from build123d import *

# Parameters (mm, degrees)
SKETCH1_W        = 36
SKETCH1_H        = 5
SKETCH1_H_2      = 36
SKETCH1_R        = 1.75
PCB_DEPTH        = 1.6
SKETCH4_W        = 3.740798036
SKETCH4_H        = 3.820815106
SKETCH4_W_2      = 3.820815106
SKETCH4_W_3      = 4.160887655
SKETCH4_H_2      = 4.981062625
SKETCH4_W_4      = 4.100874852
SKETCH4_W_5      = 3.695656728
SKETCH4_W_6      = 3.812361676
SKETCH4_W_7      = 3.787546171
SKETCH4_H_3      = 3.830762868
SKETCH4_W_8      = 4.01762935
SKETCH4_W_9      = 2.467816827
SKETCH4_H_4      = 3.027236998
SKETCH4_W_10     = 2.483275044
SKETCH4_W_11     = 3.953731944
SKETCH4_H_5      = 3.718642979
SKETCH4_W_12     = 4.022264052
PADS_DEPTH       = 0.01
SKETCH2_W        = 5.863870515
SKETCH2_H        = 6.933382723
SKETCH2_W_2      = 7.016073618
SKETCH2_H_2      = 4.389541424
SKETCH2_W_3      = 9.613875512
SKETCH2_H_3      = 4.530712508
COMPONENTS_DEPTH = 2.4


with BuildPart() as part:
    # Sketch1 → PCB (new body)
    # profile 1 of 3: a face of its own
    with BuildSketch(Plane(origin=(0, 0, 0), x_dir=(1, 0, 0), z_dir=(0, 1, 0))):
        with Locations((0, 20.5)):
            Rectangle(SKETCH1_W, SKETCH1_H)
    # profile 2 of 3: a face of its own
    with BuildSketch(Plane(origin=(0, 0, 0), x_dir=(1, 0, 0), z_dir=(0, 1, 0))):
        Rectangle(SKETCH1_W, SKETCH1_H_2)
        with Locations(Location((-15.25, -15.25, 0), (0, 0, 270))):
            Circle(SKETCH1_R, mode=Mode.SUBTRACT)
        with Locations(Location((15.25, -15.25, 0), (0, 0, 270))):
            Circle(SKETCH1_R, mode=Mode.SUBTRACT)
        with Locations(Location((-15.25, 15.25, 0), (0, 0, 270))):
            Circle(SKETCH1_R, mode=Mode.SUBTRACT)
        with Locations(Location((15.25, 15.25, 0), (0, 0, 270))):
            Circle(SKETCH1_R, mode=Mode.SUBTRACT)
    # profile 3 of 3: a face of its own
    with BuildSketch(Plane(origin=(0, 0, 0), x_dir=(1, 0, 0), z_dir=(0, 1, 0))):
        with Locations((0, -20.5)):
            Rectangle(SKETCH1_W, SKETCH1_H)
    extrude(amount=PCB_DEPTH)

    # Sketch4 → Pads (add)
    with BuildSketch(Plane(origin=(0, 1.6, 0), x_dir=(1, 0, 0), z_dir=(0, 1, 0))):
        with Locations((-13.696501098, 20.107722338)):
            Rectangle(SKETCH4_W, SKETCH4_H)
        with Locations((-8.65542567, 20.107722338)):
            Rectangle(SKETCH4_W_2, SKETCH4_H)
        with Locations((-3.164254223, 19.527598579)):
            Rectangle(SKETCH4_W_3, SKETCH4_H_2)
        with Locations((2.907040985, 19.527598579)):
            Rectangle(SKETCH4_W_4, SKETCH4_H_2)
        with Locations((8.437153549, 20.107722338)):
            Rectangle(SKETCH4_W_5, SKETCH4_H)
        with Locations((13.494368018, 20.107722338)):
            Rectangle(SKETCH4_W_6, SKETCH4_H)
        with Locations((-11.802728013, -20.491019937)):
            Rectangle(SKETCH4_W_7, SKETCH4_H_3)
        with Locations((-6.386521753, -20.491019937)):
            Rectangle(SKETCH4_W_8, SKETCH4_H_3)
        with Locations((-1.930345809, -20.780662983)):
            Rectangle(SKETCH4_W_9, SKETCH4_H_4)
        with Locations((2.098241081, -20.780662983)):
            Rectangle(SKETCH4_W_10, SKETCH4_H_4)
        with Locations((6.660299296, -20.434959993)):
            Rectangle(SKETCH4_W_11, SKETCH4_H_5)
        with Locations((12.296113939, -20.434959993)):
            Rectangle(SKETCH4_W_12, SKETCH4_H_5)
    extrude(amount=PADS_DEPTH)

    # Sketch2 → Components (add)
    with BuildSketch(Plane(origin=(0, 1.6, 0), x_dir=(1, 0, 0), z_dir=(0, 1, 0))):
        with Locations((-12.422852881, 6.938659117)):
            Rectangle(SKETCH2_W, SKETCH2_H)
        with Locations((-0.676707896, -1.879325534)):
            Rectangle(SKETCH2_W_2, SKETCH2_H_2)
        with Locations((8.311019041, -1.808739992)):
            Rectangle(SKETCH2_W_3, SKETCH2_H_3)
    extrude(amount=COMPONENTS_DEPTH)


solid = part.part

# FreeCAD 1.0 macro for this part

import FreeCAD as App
import Part
import Sketcher


def add_polygon(sketch, points):
    """Adds a closed chain of lines whose ends are joined by coincident constraints."""
    first, n = sketch.GeometryCount, len(points)
    for a, b in zip(points, points[1:] + points[:1]):
        sketch.addGeometry(Part.LineSegment(App.Vector(*a, 0), App.Vector(*b, 0)), False)
    for i in range(n):
        sketch.addConstraint(Sketcher.Constraint("Coincident", first + i, 2, first + (i + 1) % n, 1))

doc = App.newDocument("Part")
body = doc.addObject("PartDesign::Body", "Body")

# Sketch on XZ plane
sketch1 = doc.addObject("Sketcher::SketchObject", "Sketch")
body.addObject(sketch1)
sketch1.AttachmentSupport = (doc.XZ_Plane, [""])
sketch1.MapMode = "FlatFace"
add_polygon(sketch1, [(-18, -23), (-18, 23), (18, 23), (18, -23)])  # lines 0-3
sketch1.addGeometry(Part.Circle(App.Vector(15.25, -15.25, 0), App.Vector(0, 0, 1), 1.75), False)  # 4
sketch1.addGeometry(Part.Circle(App.Vector(-15.25, 15.25, 0), App.Vector(0, 0, 1), 1.75), False)  # 5
sketch1.addGeometry(Part.Circle(App.Vector(15.25, 15.25, 0), App.Vector(0, 0, 1), 1.75), False)  # 6
sketch1.addGeometry(Part.Circle(App.Vector(-15.25, -15.25, 0), App.Vector(0, 0, 1), 1.75), False)  # 7
sketch1.addConstraint(Sketcher.Constraint("Vertical", 0))
sketch1.addConstraint(Sketcher.Constraint("Horizontal", 1))
sketch1.addConstraint(Sketcher.Constraint("Vertical", 2))
sketch1.addConstraint(Sketcher.Constraint("Horizontal", 3))
sketch1.addConstraint(Sketcher.Constraint("Equal", 4, 5))
sketch1.addConstraint(Sketcher.Constraint("Equal", 5, 6))
sketch1.addConstraint(Sketcher.Constraint("Equal", 6, 7))
sketch1.addConstraint(Sketcher.Constraint("Symmetric", 4, 3, 5, 3, -1, 1))
sketch1.addConstraint(Sketcher.Constraint("Symmetric", 6, 3, 7, 3, -1, 1))
sketch1.addConstraint(Sketcher.Constraint("Symmetric", 0, 2, 2, 2, -1, 1))
sketch1.addConstraint(Sketcher.Constraint("Symmetric", 5, 3, 6, 3, -2))
sketch1.addConstraint(Sketcher.Constraint("Diameter", 4, 3.5))
sketch1.addConstraint(Sketcher.Constraint("DistanceX", 1, 1, 1, 2, 36.0))
sketch1.addConstraint(Sketcher.Constraint("DistanceY", 0, 1, 0, 2, 46.0))
sketch1.addConstraint(Sketcher.Constraint("DistanceX", 5, 3, 4, 3, 30.5))
sketch1.addConstraint(Sketcher.Constraint("DistanceY", 4, 3, 5, 3, 30.5))
pad1 = doc.addObject("PartDesign::Pad", "Pad")
body.addObject(pad1)
pad1.Profile = sketch1
pad1.Length = 1.6
pad1.Reversed = True

# Sketch on XZ plane
sketch2 = doc.addObject("Sketcher::SketchObject", "Sketch001")
body.addObject(sketch2)
sketch2.AttachmentSupport = (doc.XZ_Plane, [""])
sketch2.MapMode = "FlatFace"
sketch2.AttachmentOffset = App.Placement(App.Vector(0, 0, -1.6), App.Rotation())
add_polygon(sketch2, [(-15.5669, -22.01813), (-15.5669, -18.197315), (-11.826102, -18.197315), (-11.826102, -22.01813)])  # lines 0-3
add_polygon(sketch2, [(-10.565833, -22.01813), (-10.565833, -18.197315), (-6.745018, -18.197315), (-6.745018, -22.01813)])  # lines 4-7
add_polygon(sketch2, [(-5.244698, -22.01813), (-5.244698, -17.037067), (-1.08381, -17.037067), (-1.08381, -22.01813)])  # lines 8-11
add_polygon(sketch2, [(0.856604, -22.01813), (0.856604, -17.037067), (4.957478, -17.037067), (4.957478, -22.01813)])  # lines 12-15
add_polygon(sketch2, [(6.589325, -22.01813), (6.589325, -18.197315), (10.284982, -18.197315), (10.284982, -22.01813)])  # lines 16-19
add_polygon(sketch2, [(11.588187, -22.01813), (11.588187, -18.197315), (15.400549, -18.197315), (15.400549, -22.01813)])  # lines 20-23
add_polygon(sketch2, [(-13.696501, 18.575639), (-13.696501, 22.406401), (-9.908955, 22.406401), (-9.908955, 18.575639)])  # lines 24-27
add_polygon(sketch2, [(-8.395336, 18.575639), (-8.395336, 22.406401), (-4.377707, 22.406401), (-4.377707, 18.575639)])  # lines 28-31
add_polygon(sketch2, [(-3.164254, 19.267044), (-3.164254, 22.294281), (-0.696437, 22.294281), (-0.696437, 19.267044)])  # lines 32-35
add_polygon(sketch2, [(0.856604, 19.267044), (0.856604, 22.294281), (3.339879, 22.294281), (3.339879, 19.267044)])  # lines 36-39
add_polygon(sketch2, [(4.683433, 18.575639), (4.683433, 22.294281), (8.637165, 22.294281), (8.637165, 18.575639)])  # lines 40-43
add_polygon(sketch2, [(10.284982, 18.575639), (10.284982, 22.294281), (14.307246, 22.294281), (14.307246, 18.575639)])  # lines 44-47
sketch2.addConstraint(Sketcher.Constraint("Vertical", 0))
sketch2.addConstraint(Sketcher.Constraint("Horizontal", 1))
sketch2.addConstraint(Sketcher.Constraint("Vertical", 2))
sketch2.addConstraint(Sketcher.Constraint("Horizontal", 3))
sketch2.addConstraint(Sketcher.Constraint("Vertical", 4))
sketch2.addConstraint(Sketcher.Constraint("Horizontal", 5))
sketch2.addConstraint(Sketcher.Constraint("Vertical", 6))
sketch2.addConstraint(Sketcher.Constraint("Horizontal", 7))
sketch2.addConstraint(Sketcher.Constraint("Vertical", 8))
sketch2.addConstraint(Sketcher.Constraint("Horizontal", 9))
sketch2.addConstraint(Sketcher.Constraint("Vertical", 10))
sketch2.addConstraint(Sketcher.Constraint("Horizontal", 11))
sketch2.addConstraint(Sketcher.Constraint("Vertical", 12))
sketch2.addConstraint(Sketcher.Constraint("Horizontal", 13))
sketch2.addConstraint(Sketcher.Constraint("Vertical", 14))
sketch2.addConstraint(Sketcher.Constraint("Horizontal", 15))
sketch2.addConstraint(Sketcher.Constraint("Vertical", 16))
sketch2.addConstraint(Sketcher.Constraint("Horizontal", 17))
sketch2.addConstraint(Sketcher.Constraint("Vertical", 18))
sketch2.addConstraint(Sketcher.Constraint("Horizontal", 19))
sketch2.addConstraint(Sketcher.Constraint("Vertical", 20))
sketch2.addConstraint(Sketcher.Constraint("Horizontal", 21))
sketch2.addConstraint(Sketcher.Constraint("Vertical", 22))
sketch2.addConstraint(Sketcher.Constraint("Horizontal", 23))
sketch2.addConstraint(Sketcher.Constraint("Vertical", 24))
sketch2.addConstraint(Sketcher.Constraint("Horizontal", 25))
sketch2.addConstraint(Sketcher.Constraint("Vertical", 26))
sketch2.addConstraint(Sketcher.Constraint("Horizontal", 27))
sketch2.addConstraint(Sketcher.Constraint("Vertical", 28))
sketch2.addConstraint(Sketcher.Constraint("Horizontal", 29))
sketch2.addConstraint(Sketcher.Constraint("Vertical", 30))
sketch2.addConstraint(Sketcher.Constraint("Horizontal", 31))
sketch2.addConstraint(Sketcher.Constraint("Vertical", 32))
sketch2.addConstraint(Sketcher.Constraint("Horizontal", 33))
sketch2.addConstraint(Sketcher.Constraint("Vertical", 34))
sketch2.addConstraint(Sketcher.Constraint("Horizontal", 35))
sketch2.addConstraint(Sketcher.Constraint("Vertical", 36))
sketch2.addConstraint(Sketcher.Constraint("Horizontal", 37))
sketch2.addConstraint(Sketcher.Constraint("Vertical", 38))
sketch2.addConstraint(Sketcher.Constraint("Horizontal", 39))
sketch2.addConstraint(Sketcher.Constraint("Vertical", 40))
sketch2.addConstraint(Sketcher.Constraint("Horizontal", 41))
sketch2.addConstraint(Sketcher.Constraint("Vertical", 42))
sketch2.addConstraint(Sketcher.Constraint("Horizontal", 43))
sketch2.addConstraint(Sketcher.Constraint("Vertical", 44))
sketch2.addConstraint(Sketcher.Constraint("Horizontal", 45))
sketch2.addConstraint(Sketcher.Constraint("Vertical", 46))
sketch2.addConstraint(Sketcher.Constraint("Horizontal", 47))
sketch2.addConstraint(Sketcher.Constraint("Horizontal", 1, 2, 4, 2))
sketch2.addConstraint(Sketcher.Constraint("Horizontal", 3, 2, 6, 2))
sketch2.addConstraint(Sketcher.Constraint("Horizontal", 7, 2, 10, 2))
sketch2.addConstraint(Sketcher.Constraint("Horizontal", 9, 2, 12, 2))
sketch2.addConstraint(Sketcher.Constraint("Horizontal", 11, 2, 14, 2))
sketch2.addConstraint(Sketcher.Constraint("Horizontal", 5, 2, 16, 2))
sketch2.addConstraint(Sketcher.Constraint("Horizontal", 15, 2, 18, 2))
sketch2.addConstraint(Sketcher.Constraint("Horizontal", 17, 2, 20, 2))
sketch2.addConstraint(Sketcher.Constraint("Horizontal", 19, 2, 22, 2))
sketch2.addConstraint(Sketcher.Constraint("Horizontal", 25, 2, 28, 2))
sketch2.addConstraint(Sketcher.Constraint("Horizontal", 27, 2, 30, 2))
sketch2.addConstraint(Sketcher.Constraint("Horizontal", 33, 2, 36, 2))
sketch2.addConstraint(Sketcher.Constraint("Horizontal", 35, 2, 38, 2))
sketch2.addConstraint(Sketcher.Constraint("Horizontal", 37, 2, 40, 2))
sketch2.addConstraint(Sketcher.Constraint("Horizontal", 31, 2, 42, 2))
sketch2.addConstraint(Sketcher.Constraint("Horizontal", 41, 2, 44, 2))
sketch2.addConstraint(Sketcher.Constraint("Horizontal", 43, 2, 46, 2))
sketch2.addConstraint(Sketcher.Constraint("Vertical", 15, 2, 36, 2))
sketch2.addConstraint(Sketcher.Constraint("Vertical", 18, 2, 44, 2))
sketch2.addConstraint(Sketcher.Constraint("Equal", 7, 0))
sketch2.addConstraint(Sketcher.Constraint("DistanceX", 1, 1, 1, 2, 3.740798))
sketch2.addConstraint(Sketcher.Constraint("DistanceX", 21, 1, 21, 2, 3.812362))
sketch2.addConstraint(Sketcher.Constraint("DistanceX", 29, 1, 29, 2, 4.017629))
sketch2.addConstraint(Sketcher.Constraint("DistanceX", 41, 1, 41, 2, 3.953732))
sketch2.addConstraint(Sketcher.Constraint("DistanceX", 0, 2, -1, 1, 15.5669))
sketch2.addConstraint(Sketcher.Constraint("DistanceX", 8, 2, -1, 1, 5.244698))
sketch2.addConstraint(Sketcher.Constraint("DistanceX", 24, 2, -1, 1, 13.696501))
sketch2.addConstraint(Sketcher.Constraint("DistanceY", -1, 1, 24, 2, 22.406401))
sketch2.addConstraint(Sketcher.Constraint("DistanceX", 8, 2, 12, 2, 6.101302))
sketch2.addConstraint(Sketcher.Constraint("DistanceX", 25, 2, 32, 2, 6.744701))
sketch2.addConstraint(Sketcher.Constraint("DistanceX", 28, 2, 33, 2, 7.698899))
sketch2.addConstraint(Sketcher.Constraint("DistanceX", 5, 1, 5, 2, 3.820815))
sketch2.addConstraint(Sketcher.Constraint("DistanceX", 9, 1, 9, 2, 4.160888))
sketch2.addConstraint(Sketcher.Constraint("DistanceX", 13, 1, 13, 2, 4.100875))
sketch2.addConstraint(Sketcher.Constraint("DistanceX", 17, 1, 17, 2, 3.695657))
sketch2.addConstraint(Sketcher.Constraint("DistanceX", 25, 1, 25, 2, 3.787546))
sketch2.addConstraint(Sketcher.Constraint("DistanceX", 33, 1, 33, 2, 2.467817))
sketch2.addConstraint(Sketcher.Constraint("DistanceX", 37, 1, 37, 2, 2.483275))
sketch2.addConstraint(Sketcher.Constraint("DistanceX", 45, 1, 45, 2, 4.022264))
sketch2.addConstraint(Sketcher.Constraint("DistanceY", 8, 1, 8, 2, 4.981063))
sketch2.addConstraint(Sketcher.Constraint("DistanceY", 24, 1, 24, 2, 3.830763))
sketch2.addConstraint(Sketcher.Constraint("DistanceY", 32, 1, 32, 2, 3.027237))
sketch2.addConstraint(Sketcher.Constraint("DistanceY", 40, 1, 40, 2, 3.718643))
sketch2.addConstraint(Sketcher.Constraint("DistanceY", 2, 2, -1, 1, 22.01813))
sketch2.addConstraint(Sketcher.Constraint("DistanceX", 5, 2, -1, 1, 6.745018))
sketch2.addConstraint(Sketcher.Constraint("DistanceX", -1, 1, 17, 2, 10.284982))
sketch2.addConstraint(Sketcher.Constraint("DistanceX", -1, 1, 21, 2, 15.400549))
sketch2.addConstraint(Sketcher.Constraint("DistanceX", 36, 2, 40, 2, 3.82683))
pad2 = doc.addObject("PartDesign::Pad", "Pad001")
body.addObject(pad2)
pad2.Profile = sketch2
pad2.Length = 0.01
pad2.Reversed = True

# Sketch on XZ plane
sketch3 = doc.addObject("Sketcher::SketchObject", "Sketch002")
body.addObject(sketch3)
sketch3.AttachmentSupport = (doc.XZ_Plane, [""])
sketch3.MapMode = "FlatFace"
sketch3.AttachmentOffset = App.Placement(App.Vector(0, 0, -1.6), App.Rotation())
add_polygon(sketch3, [(-15.354788, -10.40535), (-15.354788, -3.471968), (-9.490918, -3.471968), (-9.490918, -10.40535)])  # lines 0-3
add_polygon(sketch3, [(-4.184745, -0.315445), (-4.184745, 4.074096), (2.831329, 4.074096), (2.831329, -0.315445)])  # lines 4-7
add_polygon(sketch3, [(3.504081, -0.456616), (3.504081, 4.074096), (13.117957, 4.074096), (13.117957, -0.456616)])  # lines 8-11
sketch3.addConstraint(Sketcher.Constraint("Vertical", 0))
sketch3.addConstraint(Sketcher.Constraint("Horizontal", 1))
sketch3.addConstraint(Sketcher.Constraint("Vertical", 2))
sketch3.addConstraint(Sketcher.Constraint("Horizontal", 3))
sketch3.addConstraint(Sketcher.Constraint("Vertical", 4))
sketch3.addConstraint(Sketcher.Constraint("Horizontal", 5))
sketch3.addConstraint(Sketcher.Constraint("Vertical", 6))
sketch3.addConstraint(Sketcher.Constraint("Horizontal", 7))
sketch3.addConstraint(Sketcher.Constraint("Vertical", 8))
sketch3.addConstraint(Sketcher.Constraint("Horizontal", 9))
sketch3.addConstraint(Sketcher.Constraint("Vertical", 10))
sketch3.addConstraint(Sketcher.Constraint("Horizontal", 11))
sketch3.addConstraint(Sketcher.Constraint("Horizontal", 5, 2, 8, 2))
sketch3.addConstraint(Sketcher.Constraint("DistanceX", 1, 2, 8, 2, 12.994999))
sketch3.addConstraint(Sketcher.Constraint("DistanceX", 1, 1, 1, 2, 5.863871))
sketch3.addConstraint(Sketcher.Constraint("DistanceY", 4, 1, 4, 2, 4.389541))
sketch3.addConstraint(Sketcher.Constraint("DistanceX", 4, 2, 9, 2, 17.302702))
sketch3.addConstraint(Sketcher.Constraint("DistanceX", 5, 1, 5, 2, 7.016074))
sketch3.addConstraint(Sketcher.Constraint("DistanceX", 9, 1, 9, 2, 9.613876))
sketch3.addConstraint(Sketcher.Constraint("DistanceY", 0, 1, 0, 2, 6.933383))
sketch3.addConstraint(Sketcher.Constraint("DistanceY", 8, 1, 8, 2, 4.530713))
sketch3.addConstraint(Sketcher.Constraint("DistanceX", 0, 2, -1, 1, 15.354788))
sketch3.addConstraint(Sketcher.Constraint("DistanceY", 2, 2, -1, 1, 10.40535))
sketch3.addConstraint(Sketcher.Constraint("DistanceY", -1, 1, 4, 2, 4.074096))
pad3 = doc.addObject("PartDesign::Pad", "Pad002")
body.addObject(pad3)
pad3.Profile = sketch3
pad3.Length = 2.4
pad3.Reversed = True

doc.recompute()
